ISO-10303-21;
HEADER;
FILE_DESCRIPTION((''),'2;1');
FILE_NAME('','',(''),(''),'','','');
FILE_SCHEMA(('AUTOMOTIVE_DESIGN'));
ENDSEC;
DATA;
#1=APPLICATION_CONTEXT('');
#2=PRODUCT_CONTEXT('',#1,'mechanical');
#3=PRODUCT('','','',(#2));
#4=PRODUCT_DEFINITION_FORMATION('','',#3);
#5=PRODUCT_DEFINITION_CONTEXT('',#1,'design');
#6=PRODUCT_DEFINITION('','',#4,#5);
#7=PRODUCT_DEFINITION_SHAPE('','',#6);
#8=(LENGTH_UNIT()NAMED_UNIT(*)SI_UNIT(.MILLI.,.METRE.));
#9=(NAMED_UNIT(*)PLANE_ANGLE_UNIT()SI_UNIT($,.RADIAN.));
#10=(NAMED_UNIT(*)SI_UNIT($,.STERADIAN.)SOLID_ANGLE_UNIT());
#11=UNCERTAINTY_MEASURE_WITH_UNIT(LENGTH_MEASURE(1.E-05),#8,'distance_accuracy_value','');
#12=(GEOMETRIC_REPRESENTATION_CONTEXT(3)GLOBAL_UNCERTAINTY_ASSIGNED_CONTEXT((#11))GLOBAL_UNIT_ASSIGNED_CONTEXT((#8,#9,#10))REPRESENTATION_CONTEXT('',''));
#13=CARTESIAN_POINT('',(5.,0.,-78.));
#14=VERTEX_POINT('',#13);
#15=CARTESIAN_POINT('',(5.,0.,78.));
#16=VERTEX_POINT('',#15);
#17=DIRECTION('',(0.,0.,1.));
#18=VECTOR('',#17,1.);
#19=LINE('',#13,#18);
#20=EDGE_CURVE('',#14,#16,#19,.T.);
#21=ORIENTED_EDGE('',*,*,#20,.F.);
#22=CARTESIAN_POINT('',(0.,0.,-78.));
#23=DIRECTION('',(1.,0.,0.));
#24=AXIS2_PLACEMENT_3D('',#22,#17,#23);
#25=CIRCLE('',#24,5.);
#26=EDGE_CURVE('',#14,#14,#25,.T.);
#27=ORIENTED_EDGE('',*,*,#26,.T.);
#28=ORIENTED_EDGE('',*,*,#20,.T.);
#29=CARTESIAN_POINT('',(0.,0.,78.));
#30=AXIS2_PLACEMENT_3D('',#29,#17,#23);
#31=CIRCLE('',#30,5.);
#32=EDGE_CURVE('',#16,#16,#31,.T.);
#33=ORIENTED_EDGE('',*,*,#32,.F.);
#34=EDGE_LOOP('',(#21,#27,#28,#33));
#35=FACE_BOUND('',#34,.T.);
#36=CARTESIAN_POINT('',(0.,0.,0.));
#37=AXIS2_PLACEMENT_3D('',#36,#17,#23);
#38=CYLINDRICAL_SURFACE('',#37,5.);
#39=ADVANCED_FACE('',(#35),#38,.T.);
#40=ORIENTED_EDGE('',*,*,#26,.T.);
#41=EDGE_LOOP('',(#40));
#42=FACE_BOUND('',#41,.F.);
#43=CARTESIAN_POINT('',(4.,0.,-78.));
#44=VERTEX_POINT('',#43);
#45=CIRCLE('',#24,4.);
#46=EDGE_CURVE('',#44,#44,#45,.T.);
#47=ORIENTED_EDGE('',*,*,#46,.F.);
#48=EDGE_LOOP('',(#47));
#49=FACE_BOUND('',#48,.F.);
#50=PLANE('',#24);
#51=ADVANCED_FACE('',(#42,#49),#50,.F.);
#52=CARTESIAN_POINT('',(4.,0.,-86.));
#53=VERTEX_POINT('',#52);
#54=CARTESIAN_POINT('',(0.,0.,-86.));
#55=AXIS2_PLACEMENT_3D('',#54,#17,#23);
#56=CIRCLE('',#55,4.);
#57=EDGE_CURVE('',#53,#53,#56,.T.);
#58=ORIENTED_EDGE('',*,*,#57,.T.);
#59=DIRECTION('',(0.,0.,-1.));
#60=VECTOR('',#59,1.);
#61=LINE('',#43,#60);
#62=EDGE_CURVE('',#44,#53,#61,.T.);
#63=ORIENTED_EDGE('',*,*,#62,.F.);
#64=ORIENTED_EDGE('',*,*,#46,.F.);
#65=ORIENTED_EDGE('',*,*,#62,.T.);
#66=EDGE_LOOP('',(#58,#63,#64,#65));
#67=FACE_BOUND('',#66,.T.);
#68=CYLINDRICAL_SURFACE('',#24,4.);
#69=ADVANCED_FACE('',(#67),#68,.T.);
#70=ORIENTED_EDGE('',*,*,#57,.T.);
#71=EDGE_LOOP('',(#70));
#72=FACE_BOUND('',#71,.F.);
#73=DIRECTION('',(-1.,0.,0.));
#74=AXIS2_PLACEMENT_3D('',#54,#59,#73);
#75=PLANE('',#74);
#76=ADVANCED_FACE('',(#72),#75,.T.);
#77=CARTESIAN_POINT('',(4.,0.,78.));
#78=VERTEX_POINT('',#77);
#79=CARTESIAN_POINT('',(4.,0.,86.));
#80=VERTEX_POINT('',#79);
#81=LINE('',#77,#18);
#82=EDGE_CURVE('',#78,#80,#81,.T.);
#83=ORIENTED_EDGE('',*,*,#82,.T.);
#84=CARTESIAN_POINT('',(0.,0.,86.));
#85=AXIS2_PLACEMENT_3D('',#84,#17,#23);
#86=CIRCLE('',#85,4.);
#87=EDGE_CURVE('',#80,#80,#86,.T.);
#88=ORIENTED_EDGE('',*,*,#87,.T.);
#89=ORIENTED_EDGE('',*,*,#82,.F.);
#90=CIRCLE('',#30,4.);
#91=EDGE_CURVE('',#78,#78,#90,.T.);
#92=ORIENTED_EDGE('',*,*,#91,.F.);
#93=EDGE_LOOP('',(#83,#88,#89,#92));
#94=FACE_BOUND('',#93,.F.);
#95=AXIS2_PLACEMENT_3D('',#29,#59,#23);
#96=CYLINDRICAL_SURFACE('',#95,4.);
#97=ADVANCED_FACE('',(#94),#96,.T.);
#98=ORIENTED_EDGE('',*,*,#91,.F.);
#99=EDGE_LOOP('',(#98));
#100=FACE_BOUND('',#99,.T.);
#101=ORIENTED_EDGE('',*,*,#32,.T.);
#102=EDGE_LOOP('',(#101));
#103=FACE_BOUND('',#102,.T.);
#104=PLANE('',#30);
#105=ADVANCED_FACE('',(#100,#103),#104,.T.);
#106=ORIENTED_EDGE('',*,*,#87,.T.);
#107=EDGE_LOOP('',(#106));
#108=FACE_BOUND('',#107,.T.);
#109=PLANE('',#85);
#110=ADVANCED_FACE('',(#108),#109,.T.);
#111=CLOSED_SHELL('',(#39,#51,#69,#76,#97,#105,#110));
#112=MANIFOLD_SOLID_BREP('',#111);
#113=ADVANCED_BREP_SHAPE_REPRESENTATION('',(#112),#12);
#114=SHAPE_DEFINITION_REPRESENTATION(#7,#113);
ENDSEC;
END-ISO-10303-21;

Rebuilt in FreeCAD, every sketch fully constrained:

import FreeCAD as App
import Part
import Sketcher

doc = App.newDocument("Part")
params = doc.addObject("Spreadsheet::Sheet", "Params")
for row, (alias, value) in enumerate([
    ("sketch1_diameter", "10 mm"),
    ("pad1_length", "156 mm"),
    ("sketch2_diameter", "8 mm"),
    ("pad2_length", "8 mm"),
], start=1):
    params.set(f"A{row}", alias)
    params.set(f"B{row}", "=" + value)
    params.setAlias(f"B{row}", alias)

body = doc.addObject("PartDesign::Body", "Body")

# Sketch on XY plane
sketch1 = doc.addObject("Sketcher::SketchObject", "Sketch")
body.addObject(sketch1)
sketch1.AttachmentSupport = (doc.XY_Plane, [""])
sketch1.MapMode = "FlatFace"
sketch1.addGeometry(Part.Circle(App.Vector(0, 0, 0), App.Vector(0, 0, 1), 5), False)
sketch1.addConstraint([
    Sketcher.Constraint("Coincident", 0, 3, -1, 1),
    Sketcher.Constraint("Diameter", 0, 10.0),
])
sketch1.setExpression("Constraints[1]", "Params.sketch1_diameter")
pad1 = doc.addObject("PartDesign::Pad", "Pad")
body.addObject(pad1)
pad1.Profile = sketch1
pad1.setExpression("Length", "Params.pad1_length")
pad1.Midplane = True

# Sketch on XY plane
sketch2 = doc.addObject("Sketcher::SketchObject", "Sketch001")
body.addObject(sketch2)
sketch2.AttachmentSupport = (doc.XY_Plane, [""])
sketch2.MapMode = "FlatFace"
sketch2.AttachmentOffset = App.Placement(App.Vector(0, 0, 78), App.Rotation())
sketch2.addGeometry(Part.Circle(App.Vector(0, 0, 0), App.Vector(0, 0, 1), 4), False)
sketch2.addConstraint([
    Sketcher.Constraint("Coincident", 0, 3, -1, 1),
    Sketcher.Constraint("Diameter", 0, 8.0),
])
sketch2.setExpression("Constraints[1]", "Params.sketch2_diameter")
pad2 = doc.addObject("PartDesign::Pad", "Pad001")
body.addObject(pad2)
pad2.Profile = sketch2
pad2.setExpression("Length", "Params.pad2_length")
doc.recompute()

mirrored = doc.addObject("PartDesign::Mirrored", "Mirrored")
body.addObject(mirrored)
mirrored.Originals = [pad2]
mirrored.MirrorPlane = (doc.XY_Plane, [""])
body.Tip = mirrored

doc.recompute()
